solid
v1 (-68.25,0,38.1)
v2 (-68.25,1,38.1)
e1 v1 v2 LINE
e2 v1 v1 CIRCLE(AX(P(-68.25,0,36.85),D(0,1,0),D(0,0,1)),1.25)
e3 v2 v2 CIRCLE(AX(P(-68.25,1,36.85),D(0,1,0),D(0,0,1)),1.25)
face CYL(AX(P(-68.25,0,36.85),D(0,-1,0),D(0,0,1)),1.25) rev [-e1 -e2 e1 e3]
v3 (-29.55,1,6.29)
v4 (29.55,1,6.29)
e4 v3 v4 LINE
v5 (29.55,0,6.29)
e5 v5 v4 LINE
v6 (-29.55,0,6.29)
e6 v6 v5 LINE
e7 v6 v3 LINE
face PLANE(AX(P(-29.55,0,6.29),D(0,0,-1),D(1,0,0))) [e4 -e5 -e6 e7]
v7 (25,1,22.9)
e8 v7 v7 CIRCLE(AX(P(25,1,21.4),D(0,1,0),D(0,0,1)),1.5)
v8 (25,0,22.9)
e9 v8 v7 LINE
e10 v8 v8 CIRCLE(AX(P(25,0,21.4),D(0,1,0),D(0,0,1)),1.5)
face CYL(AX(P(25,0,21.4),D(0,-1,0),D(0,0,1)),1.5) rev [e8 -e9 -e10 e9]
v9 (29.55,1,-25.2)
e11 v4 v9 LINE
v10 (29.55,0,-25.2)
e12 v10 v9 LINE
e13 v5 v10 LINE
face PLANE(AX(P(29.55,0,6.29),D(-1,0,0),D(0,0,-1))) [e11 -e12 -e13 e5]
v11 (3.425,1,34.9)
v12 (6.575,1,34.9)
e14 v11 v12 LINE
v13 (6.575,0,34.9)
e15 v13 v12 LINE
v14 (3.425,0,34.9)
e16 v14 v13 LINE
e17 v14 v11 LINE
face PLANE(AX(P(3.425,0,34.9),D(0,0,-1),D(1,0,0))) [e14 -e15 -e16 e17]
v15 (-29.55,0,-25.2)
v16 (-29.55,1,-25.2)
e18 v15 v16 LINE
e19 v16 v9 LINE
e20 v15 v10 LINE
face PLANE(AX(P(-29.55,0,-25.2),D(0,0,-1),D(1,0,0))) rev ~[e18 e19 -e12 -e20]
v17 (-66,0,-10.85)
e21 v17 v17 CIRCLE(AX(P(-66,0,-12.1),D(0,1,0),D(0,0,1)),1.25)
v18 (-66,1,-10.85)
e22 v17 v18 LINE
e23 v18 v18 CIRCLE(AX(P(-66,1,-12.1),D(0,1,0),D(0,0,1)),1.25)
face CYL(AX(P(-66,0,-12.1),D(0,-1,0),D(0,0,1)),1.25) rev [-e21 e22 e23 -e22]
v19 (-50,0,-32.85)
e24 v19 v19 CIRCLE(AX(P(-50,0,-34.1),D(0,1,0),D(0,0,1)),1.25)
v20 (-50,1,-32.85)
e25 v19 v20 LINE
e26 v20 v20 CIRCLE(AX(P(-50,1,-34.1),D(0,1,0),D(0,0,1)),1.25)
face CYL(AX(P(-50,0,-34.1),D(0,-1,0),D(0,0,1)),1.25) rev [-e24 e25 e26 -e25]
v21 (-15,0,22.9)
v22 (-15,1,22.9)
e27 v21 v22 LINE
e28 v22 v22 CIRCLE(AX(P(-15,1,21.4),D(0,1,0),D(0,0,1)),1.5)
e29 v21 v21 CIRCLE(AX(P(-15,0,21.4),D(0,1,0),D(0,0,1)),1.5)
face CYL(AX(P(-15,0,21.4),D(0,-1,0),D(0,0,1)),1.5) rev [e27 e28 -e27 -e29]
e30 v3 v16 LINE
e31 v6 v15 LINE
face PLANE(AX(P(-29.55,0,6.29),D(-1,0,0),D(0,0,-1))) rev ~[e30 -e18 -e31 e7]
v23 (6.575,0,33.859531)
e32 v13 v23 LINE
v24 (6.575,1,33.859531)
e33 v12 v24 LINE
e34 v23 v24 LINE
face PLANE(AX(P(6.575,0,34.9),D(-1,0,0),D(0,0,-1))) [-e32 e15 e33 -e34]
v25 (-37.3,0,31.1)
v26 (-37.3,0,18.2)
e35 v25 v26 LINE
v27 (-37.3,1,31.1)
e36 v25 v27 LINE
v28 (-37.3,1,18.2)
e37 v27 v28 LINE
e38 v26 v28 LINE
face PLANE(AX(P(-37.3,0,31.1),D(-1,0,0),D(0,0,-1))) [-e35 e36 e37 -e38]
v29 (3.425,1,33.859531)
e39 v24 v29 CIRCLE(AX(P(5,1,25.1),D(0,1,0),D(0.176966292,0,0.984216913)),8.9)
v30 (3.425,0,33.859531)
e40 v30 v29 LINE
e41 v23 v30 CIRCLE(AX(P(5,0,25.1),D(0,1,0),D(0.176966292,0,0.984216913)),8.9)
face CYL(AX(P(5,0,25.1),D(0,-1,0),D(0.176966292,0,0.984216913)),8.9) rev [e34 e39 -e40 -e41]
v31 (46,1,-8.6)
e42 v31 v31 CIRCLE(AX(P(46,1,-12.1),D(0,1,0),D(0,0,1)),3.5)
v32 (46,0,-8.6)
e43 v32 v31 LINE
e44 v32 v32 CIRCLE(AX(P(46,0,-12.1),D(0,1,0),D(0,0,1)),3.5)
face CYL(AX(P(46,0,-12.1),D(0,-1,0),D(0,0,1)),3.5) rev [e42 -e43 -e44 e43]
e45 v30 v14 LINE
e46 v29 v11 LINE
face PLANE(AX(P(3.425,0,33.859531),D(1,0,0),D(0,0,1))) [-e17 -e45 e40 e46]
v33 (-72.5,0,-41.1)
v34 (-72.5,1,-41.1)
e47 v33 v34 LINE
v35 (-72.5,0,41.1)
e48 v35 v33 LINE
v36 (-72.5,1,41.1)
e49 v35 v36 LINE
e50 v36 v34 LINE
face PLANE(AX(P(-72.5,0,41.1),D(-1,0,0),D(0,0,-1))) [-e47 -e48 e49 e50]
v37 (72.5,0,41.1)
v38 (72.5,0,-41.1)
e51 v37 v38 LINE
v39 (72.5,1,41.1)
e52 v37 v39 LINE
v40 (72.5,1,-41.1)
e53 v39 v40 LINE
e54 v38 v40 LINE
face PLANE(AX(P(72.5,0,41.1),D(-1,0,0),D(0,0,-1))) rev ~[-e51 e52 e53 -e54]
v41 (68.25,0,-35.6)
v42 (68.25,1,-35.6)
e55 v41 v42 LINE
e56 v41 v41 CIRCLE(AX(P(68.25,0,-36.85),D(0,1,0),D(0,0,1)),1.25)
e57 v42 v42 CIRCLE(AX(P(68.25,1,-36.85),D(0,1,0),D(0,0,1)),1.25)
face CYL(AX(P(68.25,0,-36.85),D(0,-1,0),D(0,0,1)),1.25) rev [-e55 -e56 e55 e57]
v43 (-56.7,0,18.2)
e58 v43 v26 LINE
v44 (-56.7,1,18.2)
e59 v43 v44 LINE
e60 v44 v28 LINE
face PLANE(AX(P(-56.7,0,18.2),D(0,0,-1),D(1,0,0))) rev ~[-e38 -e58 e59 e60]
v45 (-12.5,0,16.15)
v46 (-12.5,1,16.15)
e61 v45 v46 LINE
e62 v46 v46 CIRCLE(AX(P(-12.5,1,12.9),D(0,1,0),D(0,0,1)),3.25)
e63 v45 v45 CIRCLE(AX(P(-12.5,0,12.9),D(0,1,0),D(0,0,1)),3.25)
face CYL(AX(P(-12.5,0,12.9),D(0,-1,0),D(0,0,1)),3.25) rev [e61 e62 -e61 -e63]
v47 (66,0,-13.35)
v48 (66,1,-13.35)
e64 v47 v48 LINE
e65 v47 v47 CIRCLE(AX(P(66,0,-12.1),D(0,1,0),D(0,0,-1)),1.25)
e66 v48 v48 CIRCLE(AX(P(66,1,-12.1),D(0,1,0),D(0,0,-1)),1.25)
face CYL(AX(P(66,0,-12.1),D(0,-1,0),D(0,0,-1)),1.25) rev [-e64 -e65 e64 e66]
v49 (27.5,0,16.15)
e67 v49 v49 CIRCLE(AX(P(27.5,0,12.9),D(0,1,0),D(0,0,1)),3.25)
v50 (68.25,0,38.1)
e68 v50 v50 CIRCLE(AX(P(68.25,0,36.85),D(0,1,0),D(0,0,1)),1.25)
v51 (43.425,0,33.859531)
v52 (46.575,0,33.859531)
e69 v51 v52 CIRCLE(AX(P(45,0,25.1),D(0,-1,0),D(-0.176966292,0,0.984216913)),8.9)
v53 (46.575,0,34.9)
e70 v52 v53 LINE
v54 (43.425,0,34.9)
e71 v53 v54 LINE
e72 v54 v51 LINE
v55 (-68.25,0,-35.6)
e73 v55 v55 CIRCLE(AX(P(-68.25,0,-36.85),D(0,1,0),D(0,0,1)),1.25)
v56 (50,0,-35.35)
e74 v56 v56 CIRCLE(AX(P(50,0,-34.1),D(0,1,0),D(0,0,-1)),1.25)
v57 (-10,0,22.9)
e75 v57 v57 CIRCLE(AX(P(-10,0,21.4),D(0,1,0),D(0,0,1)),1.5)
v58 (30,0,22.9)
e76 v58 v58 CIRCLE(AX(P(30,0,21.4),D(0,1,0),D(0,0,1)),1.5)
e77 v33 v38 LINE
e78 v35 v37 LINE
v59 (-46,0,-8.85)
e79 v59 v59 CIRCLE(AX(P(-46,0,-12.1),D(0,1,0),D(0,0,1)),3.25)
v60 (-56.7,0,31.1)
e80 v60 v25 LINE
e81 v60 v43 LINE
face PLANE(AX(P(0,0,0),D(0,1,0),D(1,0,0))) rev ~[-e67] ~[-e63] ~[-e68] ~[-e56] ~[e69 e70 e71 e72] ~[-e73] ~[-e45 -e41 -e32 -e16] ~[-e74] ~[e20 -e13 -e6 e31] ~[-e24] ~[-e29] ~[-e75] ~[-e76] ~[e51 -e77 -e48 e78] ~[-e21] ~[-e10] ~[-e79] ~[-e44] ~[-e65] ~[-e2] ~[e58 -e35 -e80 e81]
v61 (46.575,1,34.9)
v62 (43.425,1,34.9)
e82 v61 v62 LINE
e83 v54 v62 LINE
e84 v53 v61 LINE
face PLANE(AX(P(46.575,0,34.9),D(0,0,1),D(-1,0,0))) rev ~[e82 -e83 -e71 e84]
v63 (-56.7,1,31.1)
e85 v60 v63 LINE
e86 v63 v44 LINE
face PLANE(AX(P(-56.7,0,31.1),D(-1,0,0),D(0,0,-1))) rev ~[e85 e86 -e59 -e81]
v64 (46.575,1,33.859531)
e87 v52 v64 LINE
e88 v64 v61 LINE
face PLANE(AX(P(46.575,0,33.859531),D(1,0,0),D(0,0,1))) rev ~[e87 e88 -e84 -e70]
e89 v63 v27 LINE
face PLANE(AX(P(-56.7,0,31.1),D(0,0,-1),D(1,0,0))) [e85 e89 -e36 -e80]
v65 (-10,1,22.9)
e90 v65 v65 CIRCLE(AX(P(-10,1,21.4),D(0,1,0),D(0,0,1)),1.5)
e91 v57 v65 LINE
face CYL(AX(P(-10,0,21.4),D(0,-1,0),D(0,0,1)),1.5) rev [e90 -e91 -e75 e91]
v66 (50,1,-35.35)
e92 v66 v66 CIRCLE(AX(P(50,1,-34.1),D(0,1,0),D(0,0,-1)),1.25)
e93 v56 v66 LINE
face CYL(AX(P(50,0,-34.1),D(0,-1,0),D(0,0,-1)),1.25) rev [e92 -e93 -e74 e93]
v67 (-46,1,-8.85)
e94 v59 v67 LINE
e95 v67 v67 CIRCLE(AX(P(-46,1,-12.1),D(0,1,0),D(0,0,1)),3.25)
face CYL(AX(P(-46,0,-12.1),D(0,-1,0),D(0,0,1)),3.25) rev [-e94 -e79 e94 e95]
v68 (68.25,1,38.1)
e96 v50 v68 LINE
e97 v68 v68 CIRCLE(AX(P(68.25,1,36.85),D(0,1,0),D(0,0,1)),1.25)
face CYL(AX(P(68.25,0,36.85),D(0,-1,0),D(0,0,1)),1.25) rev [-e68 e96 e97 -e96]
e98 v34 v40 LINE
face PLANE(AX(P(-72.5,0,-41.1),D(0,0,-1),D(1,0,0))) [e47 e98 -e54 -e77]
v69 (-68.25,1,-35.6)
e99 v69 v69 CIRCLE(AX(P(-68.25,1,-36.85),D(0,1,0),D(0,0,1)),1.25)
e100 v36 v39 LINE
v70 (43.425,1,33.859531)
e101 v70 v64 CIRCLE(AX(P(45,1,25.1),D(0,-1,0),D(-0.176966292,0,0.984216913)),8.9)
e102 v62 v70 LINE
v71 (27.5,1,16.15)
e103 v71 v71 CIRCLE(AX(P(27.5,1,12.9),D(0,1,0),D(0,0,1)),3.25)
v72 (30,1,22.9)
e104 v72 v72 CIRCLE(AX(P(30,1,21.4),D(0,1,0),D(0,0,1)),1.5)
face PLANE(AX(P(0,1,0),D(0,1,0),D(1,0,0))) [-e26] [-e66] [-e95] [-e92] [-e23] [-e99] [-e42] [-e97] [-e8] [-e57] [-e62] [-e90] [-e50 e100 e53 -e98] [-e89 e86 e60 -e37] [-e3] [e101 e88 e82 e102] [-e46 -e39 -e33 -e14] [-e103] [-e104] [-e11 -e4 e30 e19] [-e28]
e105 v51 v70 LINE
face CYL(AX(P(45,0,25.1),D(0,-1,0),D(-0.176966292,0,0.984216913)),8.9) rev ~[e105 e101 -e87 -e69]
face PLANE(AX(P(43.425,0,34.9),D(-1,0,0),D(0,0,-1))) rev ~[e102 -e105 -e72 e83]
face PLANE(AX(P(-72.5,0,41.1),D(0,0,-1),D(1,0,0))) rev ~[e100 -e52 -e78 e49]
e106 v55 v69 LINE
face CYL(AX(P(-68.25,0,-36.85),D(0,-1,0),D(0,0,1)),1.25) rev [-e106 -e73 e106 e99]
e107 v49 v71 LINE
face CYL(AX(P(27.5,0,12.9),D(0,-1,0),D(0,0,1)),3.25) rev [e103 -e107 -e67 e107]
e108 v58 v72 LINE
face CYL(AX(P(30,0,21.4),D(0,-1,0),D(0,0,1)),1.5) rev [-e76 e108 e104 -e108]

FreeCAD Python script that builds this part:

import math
import FreeCAD as App
import Part
import Sketcher


def add_polygon(sketch, points):
    """Adds a closed chain of lines whose ends are joined by coincident constraints."""
    first, n = sketch.GeometryCount, len(points)
    for a, b in zip(points, points[1:] + points[:1]):
        sketch.addGeometry(Part.LineSegment(App.Vector(*a, 0), App.Vector(*b, 0)), False)
    for i in range(n):
        sketch.addConstraint(Sketcher.Constraint("Coincident", first + i, 2, first + (i + 1) % n, 1))

doc = App.newDocument("Part")
body = doc.addObject("PartDesign::Body", "Body")

# Sketch on XZ plane
sketch1 = doc.addObject("Sketcher::SketchObject", "Sketch")
body.addObject(sketch1)
sketch1.AttachmentSupport = (doc.XZ_Plane, [""])
sketch1.MapMode = "FlatFace"
add_polygon(sketch1, [(-72.5, -41.1), (-72.5, 41.1), (72.5, 41.1), (72.5, -41.1)])  # lines 0-3
sketch1.addGeometry(Part.Circle(App.Vector(-68.25, 36.85, 0), App.Vector(0, 0, 1), 1.25), False)  # 4
add_polygon(sketch1, [(-37.3, 31.1), (-56.7, 31.1), (-56.7, 18.2), (-37.3, 18.2)])  # lines 5-8
sketch1.addGeometry(Part.Circle(App.Vector(-15, 21.4, 0), App.Vector(0, 0, 1), 1.5), False)  # 9
sketch1.addGeometry(Part.Circle(App.Vector(-10, 21.4, 0), App.Vector(0, 0, 1), 1.5), False)  # 10
sketch1.addGeometry(Part.Circle(App.Vector(-12.5, 12.9, 0), App.Vector(0, 0, 1), 3.25), False)  # 11
sketch1.addGeometry(Part.LineSegment(App.Vector(3.425, 34.9, 0), App.Vector(3.425, 33.859531, 0)), False)  # 12
sketch1.addGeometry(Part.ArcOfCircle(Part.Circle(App.Vector(5, 25.1, 0), App.Vector(0, 0, 1), 8.9), math.radians(100.193105), math.radians(439.806895)), False)  # 13
sketch1.addGeometry(Part.LineSegment(App.Vector(6.575, 33.859531, 0), App.Vector(6.575, 34.9, 0)), False)  # 14
sketch1.addGeometry(Part.LineSegment(App.Vector(6.575, 34.9, 0), App.Vector(3.425, 34.9, 0)), False)  # 15
sketch1.addGeometry(Part.Circle(App.Vector(25, 21.4, 0), App.Vector(0, 0, 1), 1.5), False)  # 16
sketch1.addGeometry(Part.Circle(App.Vector(30, 21.4, 0), App.Vector(0, 0, 1), 1.5), False)  # 17
sketch1.addGeometry(Part.Circle(App.Vector(68.25, 36.85, 0), App.Vector(0, 0, 1), 1.25), False)  # 18
sketch1.addGeometry(Part.LineSegment(App.Vector(46.575, 34.9, 0), App.Vector(43.425, 34.9, 0)), False)  # 19
sketch1.addGeometry(Part.LineSegment(App.Vector(43.425, 34.9, 0), App.Vector(43.425, 33.859531, 0)), False)  # 20
sketch1.addGeometry(Part.ArcOfCircle(Part.Circle(App.Vector(45, 25.1, 0), App.Vector(0, 0, 1), 8.9), math.radians(100.193105), math.radians(439.806895)), False)  # 21
sketch1.addGeometry(Part.LineSegment(App.Vector(46.575, 33.859531, 0), App.Vector(46.575, 34.9, 0)), False)  # 22
sketch1.addGeometry(Part.Circle(App.Vector(27.5, 12.9, 0), App.Vector(0, 0, 1), 3.25), False)  # 23
sketch1.addGeometry(Part.Circle(App.Vector(-66, -12.1, 0), App.Vector(0, 0, 1), 1.25), False)  # 24
sketch1.addGeometry(Part.Circle(App.Vector(-46, -12.1, 0), App.Vector(0, 0, 1), 3.25), False)  # 25
sketch1.addGeometry(Part.Circle(App.Vector(-68.25, -36.85, 0), App.Vector(0, 0, 1), 1.25), False)  # 26
sketch1.addGeometry(Part.Circle(App.Vector(-50, -34.1, 0), App.Vector(0, 0, 1), 1.25), False)  # 27
add_polygon(sketch1, [(29.55, 6.29), (-29.55, 6.29), (-29.55, -25.2), (29.55, -25.2)])  # lines 28-31
sketch1.addGeometry(Part.Circle(App.Vector(46, -12.1, 0), App.Vector(0, 0, 1), 3.5), False)  # 32
sketch1.addGeometry(Part.Circle(App.Vector(66, -12.1, 0), App.Vector(0, 0, 1), 1.25), False)  # 33
sketch1.addGeometry(Part.Circle(App.Vector(50, -34.1, 0), App.Vector(0, 0, 1), 1.25), False)  # 34
sketch1.addGeometry(Part.Circle(App.Vector(68.25, -36.85, 0), App.Vector(0, 0, 1), 1.25), False)  # 35
sketch1.addConstraint([
    Sketcher.Constraint("Coincident", 12, 2, 13, 1),
    Sketcher.Constraint("Coincident", 13, 2, 14, 1),
    Sketcher.Constraint("Coincident", 14, 2, 15, 1),
    Sketcher.Constraint("Coincident", 15, 2, 12, 1),
    Sketcher.Constraint("Coincident", 19, 2, 20, 1),
    Sketcher.Constraint("Coincident", 20, 2, 21, 1),
    Sketcher.Constraint("Coincident", 21, 2, 22, 1),
    Sketcher.Constraint("Coincident", 22, 2, 19, 1),
    Sketcher.Constraint("Vertical", 0),
    Sketcher.Constraint("Horizontal", 1),
    Sketcher.Constraint("Vertical", 2),
    Sketcher.Constraint("Horizontal", 3),
    Sketcher.Constraint("Horizontal", 5),
    Sketcher.Constraint("Vertical", 6),
    Sketcher.Constraint("Horizontal", 7),
    Sketcher.Constraint("Vertical", 8),
    Sketcher.Constraint("Vertical", 12),
    Sketcher.Constraint("Vertical", 14),
    Sketcher.Constraint("Horizontal", 15),
    Sketcher.Constraint("Horizontal", 19),
    Sketcher.Constraint("Vertical", 20),
    Sketcher.Constraint("Vertical", 22),
    Sketcher.Constraint("Horizontal", 28),
    Sketcher.Constraint("Vertical", 29),
    Sketcher.Constraint("Horizontal", 30),
    Sketcher.Constraint("Vertical", 31),
    Sketcher.Constraint("Equal", 9, 10),
    Sketcher.Constraint("Equal", 10, 16),
    Sketcher.Constraint("Equal", 16, 17),
    Sketcher.Constraint("Equal", 4, 18),
    Sketcher.Constraint("Equal", 13, 21),
    Sketcher.Constraint("Equal", 11, 23),
    Sketcher.Constraint("Equal", 18, 24),
    Sketcher.Constraint("Equal", 23, 25),
    Sketcher.Constraint("Equal", 24, 26),
    Sketcher.Constraint("Equal", 26, 27),
    Sketcher.Constraint("Equal", 27, 33),
    Sketcher.Constraint("Equal", 33, 34),
    Sketcher.Constraint("Equal", 34, 35),
    Sketcher.Constraint("Symmetric", 18, 3, 26, 3, -1, 1),
    Sketcher.Constraint("Symmetric", 4, 3, 35, 3, -1, 1),
    Sketcher.Constraint("Symmetric", 0, 2, 2, 2, -1, 1),
    Sketcher.Constraint("Symmetric", 4, 3, 18, 3, -2),
    Sketcher.Constraint("Symmetric", 25, 3, 32, 3, -2),
    Sketcher.Constraint("Symmetric", 24, 3, 33, 3, -2),
    Sketcher.Constraint("Symmetric", 27, 3, 34, 3, -2),
    Sketcher.Constraint("Horizontal", 9, 3, 10, 3),
    Sketcher.Constraint("Horizontal", 10, 3, 16, 3),
    Sketcher.Constraint("Horizontal", 16, 3, 17, 3),
    Sketcher.Constraint("Horizontal", 13, 3, 21, 3),
    Sketcher.Constraint("Horizontal", 11, 3, 23, 3),
    Sketcher.Constraint("Horizontal", 24, 3, 25, 3),
    Sketcher.Constraint("Horizontal", 12, 2, 13, 2),
    Sketcher.Constraint("Horizontal", 15, 2, 19, 2),
    Sketcher.Constraint("Horizontal", 13, 2, 20, 2),
    Sketcher.Constraint("Horizontal", 20, 2, 21, 2),
    Sketcher.Constraint("Diameter", 9, 3.0),
    Sketcher.Constraint("Diameter", 32, 7.0),
    Sketcher.Constraint("Diameter", 4, 2.5),
    Sketcher.Constraint("Diameter", 11, 6.5),
    Sketcher.Constraint("Radius", 13, 8.9),
    Sketcher.Constraint("DistanceX", 1, 1, 1, 2, 145.0),
    Sketcher.Constraint("DistanceX", 5, 2, 5, 1, 19.4),
    Sketcher.Constraint("DistanceX", 28, 2, 28, 1, 59.1),
    Sketcher.Constraint("DistanceY", 0, 1, 0, 2, 82.2),
    Sketcher.Constraint("DistanceY", 6, 2, 6, 1, 12.9),
    Sketcher.Constraint("DistanceX", 9, 3, -1, 1, 15.0),
    Sketcher.Constraint("DistanceX", 10, 3, -1, 1, 10.0),
    Sketcher.Constraint("DistanceX", -1, 1, 13, 3, 5.0),
    Sketcher.Constraint("DistanceX", -1, 1, 16, 3, 25.0),
    Sketcher.Constraint("DistanceX", -1, 1, 17, 3, 30.0),
    Sketcher.Constraint("DistanceX", -1, 1, 21, 3, 45.0),
    Sketcher.Constraint("DistanceX", 24, 3, -1, 1, 66.0),
    Sketcher.Constraint("DistanceX", 25, 3, -1, 1, 46.0),
    Sketcher.Constraint("DistanceX", 27, 3, -1, 1, 50.0),
    Sketcher.Constraint("DistanceY", 24, 3, 11, 3, 25.0),
    Sketcher.Constraint("DistanceY", 27, 3, 25, 3, 22.0),
    Sketcher.Constraint("DistanceY", 21, 3, 1, 2, 16.0),
    Sketcher.Constraint("DistanceX", 23, 3, 1, 2, 45.0),
    Sketcher.Constraint("DistanceY", 2, 2, 34, 3, 7.0),
    Sketcher.Constraint("DistanceY", 5, 2, 0, 2, 10.0),
    Sketcher.Constraint("DistanceY", 23, 3, 19, 2, 22.0),
    Sketcher.Constraint("DistanceX", 15, 2, 15, 1, 3.15),
    Sketcher.Constraint("DistanceY", 29, 2, 29, 1, 31.49),
    Sketcher.Constraint("DistanceY", -1, 1, 9, 3, 21.4),
    Sketcher.Constraint("DistanceX", 11, 3, -1, 1, 12.5),
    Sketcher.Constraint("DistanceX", 5, 2, -1, 1, 56.7),
    Sketcher.Constraint("DistanceY", 29, 2, -1, 1, 25.2),
    Sketcher.Constraint("DistanceY", 26, 3, 4, 3, 73.7),
    Sketcher.Constraint("DistanceX", 26, 3, 29, 2, 38.7),
    Sketcher.Constraint("DistanceX", 30, 2, 35, 3, 38.7),
])
pad1 = doc.addObject("PartDesign::Pad", "Pad")
body.addObject(pad1)
pad1.Profile = sketch1
pad1.Length = 1
pad1.Reversed = True

doc.recompute()
